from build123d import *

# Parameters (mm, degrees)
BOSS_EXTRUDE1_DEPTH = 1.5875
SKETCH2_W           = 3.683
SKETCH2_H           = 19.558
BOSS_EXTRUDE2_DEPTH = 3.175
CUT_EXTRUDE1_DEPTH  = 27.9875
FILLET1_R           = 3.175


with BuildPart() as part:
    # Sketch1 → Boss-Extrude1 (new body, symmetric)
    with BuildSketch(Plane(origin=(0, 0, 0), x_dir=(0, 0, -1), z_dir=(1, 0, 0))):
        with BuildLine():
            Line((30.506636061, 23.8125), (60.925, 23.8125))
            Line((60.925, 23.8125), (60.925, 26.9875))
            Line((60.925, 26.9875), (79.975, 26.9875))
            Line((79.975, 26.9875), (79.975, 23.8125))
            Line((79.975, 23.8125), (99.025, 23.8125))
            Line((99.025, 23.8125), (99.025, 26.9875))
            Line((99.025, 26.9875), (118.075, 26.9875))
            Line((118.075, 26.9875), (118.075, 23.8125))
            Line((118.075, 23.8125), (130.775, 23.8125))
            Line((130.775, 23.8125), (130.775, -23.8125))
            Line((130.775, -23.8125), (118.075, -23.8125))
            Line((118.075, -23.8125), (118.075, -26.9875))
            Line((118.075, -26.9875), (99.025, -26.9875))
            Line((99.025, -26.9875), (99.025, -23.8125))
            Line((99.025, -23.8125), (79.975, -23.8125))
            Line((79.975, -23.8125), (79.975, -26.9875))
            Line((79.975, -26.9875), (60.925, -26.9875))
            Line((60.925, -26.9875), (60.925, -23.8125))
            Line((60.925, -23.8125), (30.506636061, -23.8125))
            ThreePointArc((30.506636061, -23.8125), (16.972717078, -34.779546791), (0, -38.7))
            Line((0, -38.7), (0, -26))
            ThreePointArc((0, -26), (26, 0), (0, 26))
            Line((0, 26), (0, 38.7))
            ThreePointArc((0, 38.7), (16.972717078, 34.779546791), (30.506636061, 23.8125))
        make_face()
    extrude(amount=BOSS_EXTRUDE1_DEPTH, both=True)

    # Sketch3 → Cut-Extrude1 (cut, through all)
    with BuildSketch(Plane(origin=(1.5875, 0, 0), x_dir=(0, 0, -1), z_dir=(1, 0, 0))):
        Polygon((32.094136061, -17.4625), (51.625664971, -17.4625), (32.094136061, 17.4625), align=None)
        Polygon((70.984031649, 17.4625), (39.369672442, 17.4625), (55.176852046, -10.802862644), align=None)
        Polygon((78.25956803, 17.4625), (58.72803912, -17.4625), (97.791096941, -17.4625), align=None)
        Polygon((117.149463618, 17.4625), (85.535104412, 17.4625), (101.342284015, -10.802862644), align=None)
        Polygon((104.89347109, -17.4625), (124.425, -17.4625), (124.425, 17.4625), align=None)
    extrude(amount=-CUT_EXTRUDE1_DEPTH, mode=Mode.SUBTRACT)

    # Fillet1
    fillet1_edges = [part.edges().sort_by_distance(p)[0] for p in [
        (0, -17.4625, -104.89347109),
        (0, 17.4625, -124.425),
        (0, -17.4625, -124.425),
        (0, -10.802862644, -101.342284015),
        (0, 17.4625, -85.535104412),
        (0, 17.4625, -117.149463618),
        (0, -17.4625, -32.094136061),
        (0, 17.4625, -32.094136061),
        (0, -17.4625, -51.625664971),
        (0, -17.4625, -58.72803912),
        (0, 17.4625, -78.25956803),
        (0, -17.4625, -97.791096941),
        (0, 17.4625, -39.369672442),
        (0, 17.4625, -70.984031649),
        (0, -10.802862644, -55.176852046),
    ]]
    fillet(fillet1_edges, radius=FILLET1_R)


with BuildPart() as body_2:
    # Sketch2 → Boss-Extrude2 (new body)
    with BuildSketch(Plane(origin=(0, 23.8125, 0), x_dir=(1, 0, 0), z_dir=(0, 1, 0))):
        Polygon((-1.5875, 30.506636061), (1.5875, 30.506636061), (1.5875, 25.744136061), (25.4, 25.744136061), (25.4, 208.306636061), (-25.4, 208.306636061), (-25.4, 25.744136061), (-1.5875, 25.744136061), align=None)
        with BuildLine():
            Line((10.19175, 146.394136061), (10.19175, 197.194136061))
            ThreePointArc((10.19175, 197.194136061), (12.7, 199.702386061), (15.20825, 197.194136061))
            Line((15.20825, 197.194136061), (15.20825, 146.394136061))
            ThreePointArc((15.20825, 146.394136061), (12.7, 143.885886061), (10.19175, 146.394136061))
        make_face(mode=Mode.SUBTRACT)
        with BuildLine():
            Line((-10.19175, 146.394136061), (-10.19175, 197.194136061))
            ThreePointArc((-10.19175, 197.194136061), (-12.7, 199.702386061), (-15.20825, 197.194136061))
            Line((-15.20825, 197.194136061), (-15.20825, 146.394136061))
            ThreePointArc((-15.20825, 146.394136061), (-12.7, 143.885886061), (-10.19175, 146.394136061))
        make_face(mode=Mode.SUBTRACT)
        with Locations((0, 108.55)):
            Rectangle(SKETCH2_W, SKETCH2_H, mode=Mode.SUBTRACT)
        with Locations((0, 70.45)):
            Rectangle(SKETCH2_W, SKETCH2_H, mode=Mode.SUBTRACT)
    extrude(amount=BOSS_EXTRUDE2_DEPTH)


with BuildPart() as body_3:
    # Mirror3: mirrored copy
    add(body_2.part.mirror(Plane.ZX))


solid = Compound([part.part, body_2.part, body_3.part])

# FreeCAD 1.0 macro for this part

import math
import FreeCAD as App
import Part
import Sketcher
from FreeCAD import Vector
Q = App.Units.Quantity


def edges_at(feature, points):
    """Names of the edges that pass closest to the given points."""
    edges = feature.Shape.Edges
    near = lambda p: min(range(len(edges)), key=lambda i: edges[i].distToShape(Part.Vertex(*p))[0])
    return sorted({f"Edge{near(p) + 1}" for p in points})


def add_polygon(sketch, points):
    """Adds a closed chain of lines whose ends are joined by coincident constraints."""
    first, n = sketch.GeometryCount, len(points)
    for a, b in zip(points, points[1:] + points[:1]):
        sketch.addGeometry(Part.LineSegment(App.Vector(*a, 0), App.Vector(*b, 0)), False)
    for i in range(n):
        sketch.addConstraint(Sketcher.Constraint("Coincident", first + i, 2, first + (i + 1) % n, 1))

doc = App.newDocument("Part")
body = doc.addObject("PartDesign::Body", "Body")

# Sketch on YZ plane
sketch1 = doc.addObject("Sketcher::SketchObject", "Sketch")
body.addObject(sketch1)
sketch1.AttachmentSupport = (doc.YZ_Plane, [""])
sketch1.MapMode = "FlatFace"
sketch1.addGeometry(Part.LineSegment(Vector(23.8, -60.9, 0), Vector(23.8, -30.5, 0)), False)
sketch1.addGeometry(Part.ArcOfCircle(Part.Circle(Vector(0, 0, 0), Vector(0, 0, 1), 38.7), math.radians(-52), math.radians(0)), False)
sketch1.addGeometry(Part.LineSegment(Vector(38.7, 0, 0), Vector(26, 0, 0)), False)
sketch1.addGeometry(Part.ArcOfCircle(Part.Circle(Vector(0, 0, 0), Vector(0, 0, 1), 26), math.radians(180), math.radians(360)), False)
sketch1.addGeometry(Part.LineSegment(Vector(-26, 0, 0), Vector(-38.7, 0, 0)), False)
sketch1.addGeometry(Part.ArcOfCircle(Part.Circle(Vector(0, 0, 0), Vector(0, 0, 1), 38.7), math.radians(180), math.radians(232)), False)
sketch1.addGeometry(Part.LineSegment(Vector(-23.8, -30.5, 0), Vector(-23.8, -60.9, 0)), False)
sketch1.addGeometry(Part.LineSegment(Vector(-23.8, -60.9, 0), Vector(-27, -60.9, 0)), False)
sketch1.addGeometry(Part.LineSegment(Vector(-27, -60.9, 0), Vector(-27, -80, 0)), False)
sketch1.addGeometry(Part.LineSegment(Vector(-27, -80, 0), Vector(-23.8, -80, 0)), False)
sketch1.addGeometry(Part.LineSegment(Vector(-23.8, -80, 0), Vector(-23.8, -99, 0)), False)
sketch1.addGeometry(Part.LineSegment(Vector(-23.8, -99, 0), Vector(-27, -99, 0)), False)
sketch1.addGeometry(Part.LineSegment(Vector(-27, -99, 0), Vector(-27, -118.1, 0)), False)
sketch1.addGeometry(Part.LineSegment(Vector(-27, -118.1, 0), Vector(-23.8, -118.1, 0)), False)
sketch1.addGeometry(Part.LineSegment(Vector(-23.8, -118.1, 0), Vector(-23.8, -130.8, 0)), False)
sketch1.addGeometry(Part.LineSegment(Vector(-23.8, -130.8, 0), Vector(23.8, -130.8, 0)), False)
sketch1.addGeometry(Part.LineSegment(Vector(23.8, -130.8, 0), Vector(23.8, -118.1, 0)), False)
sketch1.addGeometry(Part.LineSegment(Vector(23.8, -118.1, 0), Vector(27, -118.1, 0)), False)
sketch1.addGeometry(Part.LineSegment(Vector(27, -118.1, 0), Vector(27, -99, 0)), False)
sketch1.addGeometry(Part.LineSegment(Vector(27, -99, 0), Vector(23.8, -99, 0)), False)
sketch1.addGeometry(Part.LineSegment(Vector(23.8, -99, 0), Vector(23.8, -80, 0)), False)
sketch1.addGeometry(Part.LineSegment(Vector(23.8, -80, 0), Vector(27, -80, 0)), False)
sketch1.addGeometry(Part.LineSegment(Vector(27, -80, 0), Vector(27, -60.9, 0)), False)
sketch1.addGeometry(Part.LineSegment(Vector(27, -60.9, 0), Vector(23.8, -60.9, 0)), False)
sketch1.addConstraint(Sketcher.Constraint("Coincident", 0, 2, 1, 1))
sketch1.addConstraint(Sketcher.Constraint("Coincident", 1, 2, 2, 1))
sketch1.addConstraint(Sketcher.Constraint("Coincident", 2, 2, 3, 2))
sketch1.addConstraint(Sketcher.Constraint("Coincident", 3, 1, 4, 1))
sketch1.addConstraint(Sketcher.Constraint("Coincident", 4, 2, 5, 1))
sketch1.addConstraint(Sketcher.Constraint("Coincident", 5, 2, 6, 1))
sketch1.addConstraint(Sketcher.Constraint("Coincident", 6, 2, 7, 1))
sketch1.addConstraint(Sketcher.Constraint("Coincident", 7, 2, 8, 1))
sketch1.addConstraint(Sketcher.Constraint("Coincident", 8, 2, 9, 1))
sketch1.addConstraint(Sketcher.Constraint("Coincident", 9, 2, 10, 1))
sketch1.addConstraint(Sketcher.Constraint("Coincident", 10, 2, 11, 1))
sketch1.addConstraint(Sketcher.Constraint("Coincident", 11, 2, 12, 1))
sketch1.addConstraint(Sketcher.Constraint("Coincident", 12, 2, 13, 1))
sketch1.addConstraint(Sketcher.Constraint("Coincident", 13, 2, 14, 1))
sketch1.addConstraint(Sketcher.Constraint("Coincident", 14, 2, 15, 1))
sketch1.addConstraint(Sketcher.Constraint("Coincident", 15, 2, 16, 1))
sketch1.addConstraint(Sketcher.Constraint("Coincident", 16, 2, 17, 1))
sketch1.addConstraint(Sketcher.Constraint("Coincident", 17, 2, 18, 1))
sketch1.addConstraint(Sketcher.Constraint("Coincident", 18, 2, 19, 1))
sketch1.addConstraint(Sketcher.Constraint("Coincident", 19, 2, 20, 1))
sketch1.addConstraint(Sketcher.Constraint("Coincident", 20, 2, 21, 1))
sketch1.addConstraint(Sketcher.Constraint("Coincident", 21, 2, 22, 1))
sketch1.addConstraint(Sketcher.Constraint("Coincident", 22, 2, 23, 1))
sketch1.addConstraint(Sketcher.Constraint("Coincident", 23, 2, 0, 1))
sketch1.addConstraint(Sketcher.Constraint("Vertical", 0))
sketch1.addConstraint(Sketcher.Constraint("Horizontal", 2))
sketch1.addConstraint(Sketcher.Constraint("Horizontal", 4))
sketch1.addConstraint(Sketcher.Constraint("Vertical", 6))
sketch1.addConstraint(Sketcher.Constraint("Horizontal", 7))
sketch1.addConstraint(Sketcher.Constraint("Vertical", 8))
sketch1.addConstraint(Sketcher.Constraint("Horizontal", 9))
sketch1.addConstraint(Sketcher.Constraint("Vertical", 10))
sketch1.addConstraint(Sketcher.Constraint("Horizontal", 11))
sketch1.addConstraint(Sketcher.Constraint("Vertical", 12))
sketch1.addConstraint(Sketcher.Constraint("Horizontal", 13))
sketch1.addConstraint(Sketcher.Constraint("Vertical", 14))
sketch1.addConstraint(Sketcher.Constraint("Horizontal", 15))
sketch1.addConstraint(Sketcher.Constraint("Vertical", 16))
sketch1.addConstraint(Sketcher.Constraint("Horizontal", 17))
sketch1.addConstraint(Sketcher.Constraint("Vertical", 18))
sketch1.addConstraint(Sketcher.Constraint("Horizontal", 19))
sketch1.addConstraint(Sketcher.Constraint("Vertical", 20))
sketch1.addConstraint(Sketcher.Constraint("Horizontal", 21))
sketch1.addConstraint(Sketcher.Constraint("Vertical", 22))
sketch1.addConstraint(Sketcher.Constraint("Horizontal", 23))
sketch1.addConstraint(Sketcher.Constraint("Coincident", 1, 3, -1, 1))
sketch1.addConstraint(Sketcher.Constraint("Coincident", 3, 3, -1, 1))
sketch1.addConstraint(Sketcher.Constraint("Coincident", 5, 3, -1, 1))
sketch1.addConstraint(Sketcher.Constraint("Equal", 1, 5))
sketch1.addConstraint(Sketcher.Constraint("Symmetric", 13, 2, 16, 2, -2))
sketch1.addConstraint(Sketcher.Constraint("Symmetric", 11, 2, 18, 2, -2))
sketch1.addConstraint(Sketcher.Constraint("Symmetric", 9, 2, 20, 2, -2))
sketch1.addConstraint(Sketcher.Constraint("Symmetric", 7, 2, 22, 2, -2))
sketch1.addConstraint(Sketcher.Constraint("PointOnObject", 1, 2, -1))
sketch1.addConstraint(Sketcher.Constraint("PointOnObject", 3, 1, -1))
sketch1.addConstraint(Sketcher.Constraint("Horizontal", 0, 2, 5, 2))
sketch1.addConstraint(Sketcher.Constraint("Vertical", 6, 2, 9, 2))
sketch1.addConstraint(Sketcher.Constraint("Vertical", 8, 2, 11, 2))
sketch1.addConstraint(Sketcher.Constraint("Vertical", 10, 2, 13, 2))
sketch1.addConstraint(Sketcher.Constraint("Equal", 8, 10))
sketch1.addConstraint(Sketcher.Constraint("Equal", 10, 12))
sketch1.addConstraint(Sketcher.Constraint("Equal", 4, 14))
sketch1.addConstraint(Sketcher.Constraint("DistanceX", 2, 2, 2, 1, Q("0.5 in")))
sketch1.addConstraint(Sketcher.Constraint("DistanceX", 7, 2, 0, 2, Q("2 in")))
sketch1.addConstraint(Sketcher.Constraint("DistanceY", 14, 2, 9, 2, Q("2 in")))
sketch1.addConstraint(Sketcher.Constraint("DistanceX", 7, 2, 7, 1, Q("0.125 in")))
sketch1.addConstraint(Sketcher.Constraint("Radius", 1, Q("38.7 mm")))
sketch1.addConstraint(Sketcher.Constraint("DistanceY", 6, 2, -1, 1, Q("60.925 mm")))
pad1 = doc.addObject("PartDesign::Pad", "Pad")
body.addObject(pad1)
pad1.Profile = sketch1
pad1.Length = Q("0.125 in")
pad1.Midplane = True

# Sketch on YZ plane
sketch2 = doc.addObject("Sketcher::SketchObject", "Sketch001")
body.addObject(sketch2)
sketch2.AttachmentSupport = (doc.YZ_Plane, [""])
sketch2.MapMode = "FlatFace"
sketch2.AttachmentOffset = App.Placement(Vector(0, 0, 0.0625 * 25.4), App.Rotation())
add_polygon(sketch2, [(-17, -32), (-17, -52), (17, -32)])  # lines 0-2
add_polygon(sketch2, [(17, -71), (17, -39), (-11, -55)])  # lines 3-5
add_polygon(sketch2, [(17, -78), (-17, -59), (-17, -98)])  # lines 6-8
add_polygon(sketch2, [(17, -117), (17, -86), (-11, -101)])  # lines 9-11
add_polygon(sketch2, [(-17, -105), (-17, -124), (17, -124)])  # lines 12-14
sketch2.addConstraint(Sketcher.Constraint("Vertical", 0))
sketch2.addConstraint(Sketcher.Constraint("Horizontal", 2))
sketch2.addConstraint(Sketcher.Constraint("Vertical", 3))
sketch2.addConstraint(Sketcher.Constraint("Vertical", 7))
sketch2.addConstraint(Sketcher.Constraint("Vertical", 9))
sketch2.addConstraint(Sketcher.Constraint("Vertical", 12))
sketch2.addConstraint(Sketcher.Constraint("Horizontal", 13))
sketch2.addConstraint(Sketcher.Constraint("Parallel", 1, 4))
sketch2.addConstraint(Sketcher.Constraint("Parallel", 5, 6))
sketch2.addConstraint(Sketcher.Constraint("Parallel", 4, 8))
sketch2.addConstraint(Sketcher.Constraint("Parallel", 8, 10))
sketch2.addConstraint(Sketcher.Constraint("Parallel", 6, 11))
sketch2.addConstraint(Sketcher.Constraint("Parallel", 11, 14))
sketch2.addConstraint(Sketcher.Constraint("Vertical", 1, 2, 3, 2))
sketch2.addConstraint(Sketcher.Constraint("Vertical", 2, 2, 6, 2))
sketch2.addConstraint(Sketcher.Constraint("Vertical", 5, 2, 8, 2))
sketch2.addConstraint(Sketcher.Constraint("Vertical", 8, 2, 9, 2))
sketch2.addConstraint(Sketcher.Constraint("Vertical", 4, 2, 10, 2))
sketch2.addConstraint(Sketcher.Constraint("Vertical", 7, 2, 12, 2))
sketch2.addConstraint(Sketcher.Constraint("Vertical", 11, 2, 13, 2))
sketch2.addConstraint(Sketcher.Constraint("Equal", 0, 12))
sketch2.addConstraint(Sketcher.Constraint("DistanceX", 2, 2, 2, 1, Q("1.375 in")))
sketch2.addConstraint(Sketcher.Constraint("DistanceX", 0, 2, -1, 1, Q("0.6875 in")))
sketch2.addConstraint(Sketcher.Constraint("DistanceY", 0, 2, 0, 1, Q("19.531529 mm")))
sketch2.addConstraint(Sketcher.Constraint("DistanceY", 3, 1, 3, 2, Q("31.614359 mm")))
sketch2.addConstraint(Sketcher.Constraint("DistanceY", 12, 2, -1, 1, Q("124.425 mm")))
sketch2.addConstraint(Sketcher.Constraint("DistanceY", 5, 2, -1, 1, Q("70.984032 mm")))
sketch2.addConstraint(Sketcher.Constraint("DistanceY", 6, 2, -1, 1, Q("58.728039 mm")))
sketch2.addConstraint(Sketcher.Constraint("DistanceY", 7, 2, 0, 2, Q("46.165432 mm")))
sketch2.addConstraint(Sketcher.Constraint("DistanceY", 11, 2, 5, 2, Q("46.165432 mm")))
pocket1 = doc.addObject("PartDesign::Pocket", "Pocket")
body.addObject(pocket1)
pocket1.Profile = sketch2
pocket1.Type = "ThroughAll"
doc.recompute()

fillet = doc.addObject("PartDesign::Fillet", "Fillet")
body.addObject(fillet)
fillet.Base = (pocket1, edges_at(pocket1, [
    (0, -17.462, -104.893),
    (0, 17.462, -124.425),
    (0, -17.462, -124.425),
    (0, -10.803, -101.342),
    (0, 17.462, -85.535),
    (0, 17.462, -117.149),
    (0, -17.462, -32.094),
    (0, 17.462, -32.094),
    (0, -17.462, -51.626),
    (0, -17.462, -58.728),
    (0, 17.462, -78.26),
    (0, -17.462, -97.791),
    (0, 17.462, -39.37),
    (0, 17.462, -70.984),
    (0, -10.803, -55.177),
]))
fillet.Radius = Q("0.125 in")
body2 = doc.addObject("PartDesign::Body", "Body001")

# Sketch on XZ plane
sketch3 = doc.addObject("Sketcher::SketchObject", "Sketch002")
body2.addObject(sketch3)
sketch3.AttachmentSupport = (doc.getObject("XZ_Plane001"), [""])
sketch3.MapMode = "FlatFace"
sketch3.AttachmentOffset = App.Placement(Vector(0, 0, -0.9375 * 25.4), App.Rotation())
add_polygon(sketch3, [(-1.6, -30.5), (1.6, -30.5), (1.6, -25.7), (25.4, -25.7), (25.4, -208.3), (-25.4, -208.3), (-25.4, -25.7), (-1.6, -25.7)])  # lines 0-7
add_polygon(sketch3, [(1.8, -60.7), (-1.8, -60.7), (-1.8, -80.2), (1.8, -80.2)])  # lines 8-11
add_polygon(sketch3, [(1.8, -98.8), (-1.8, -98.8), (-1.8, -118.3), (1.8, -118.3)])  # lines 12-15
sketch3.addGeometry(Part.LineSegment(Vector(-10.2, -197.2, 0), Vector(-10.2, -146.4, 0)), False)  # 16
sketch3.addGeometry(Part.ArcOfCircle(Part.Circle(Vector(-12.7, -146.4, 0), Vector(0, 0, 1), 2.5), math.radians(0), math.radians(180)), False)  # 17
sketch3.addGeometry(Part.LineSegment(Vector(-15.2, -146.4, 0), Vector(-15.2, -197.2, 0)), False)  # 18
sketch3.addGeometry(Part.ArcOfCircle(Part.Circle(Vector(-12.7, -197.2, 0), Vector(0, 0, 1), 2.5), math.radians(180), math.radians(360)), False)  # 19
sketch3.addGeometry(Part.ArcOfCircle(Part.Circle(Vector(12.7, -146.4, 0), Vector(0, 0, 1), 2.5), math.radians(0), math.radians(180)), False)  # 20
sketch3.addGeometry(Part.LineSegment(Vector(10.2, -146.4, 0), Vector(10.2, -197.2, 0)), False)  # 21
sketch3.addGeometry(Part.ArcOfCircle(Part.Circle(Vector(12.7, -197.2, 0), Vector(0, 0, 1), 2.5), math.radians(180), math.radians(360)), False)  # 22
sketch3.addGeometry(Part.LineSegment(Vector(15.2, -197.2, 0), Vector(15.2, -146.4, 0)), False)  # 23
sketch3.addConstraint(Sketcher.Constraint("Tangent", 16, 2, 17, 1))
sketch3.addConstraint(Sketcher.Constraint("Tangent", 17, 2, 18, 1))
sketch3.addConstraint(Sketcher.Constraint("Tangent", 18, 2, 19, 1))
sketch3.addConstraint(Sketcher.Constraint("Tangent", 19, 2, 16, 1))
sketch3.addConstraint(Sketcher.Constraint("Tangent", 20, 2, 21, 1))
sketch3.addConstraint(Sketcher.Constraint("Tangent", 21, 2, 22, 1))
sketch3.addConstraint(Sketcher.Constraint("Tangent", 22, 2, 23, 1))
sketch3.addConstraint(Sketcher.Constraint("Tangent", 23, 2, 20, 1))
sketch3.addConstraint(Sketcher.Constraint("Horizontal", 0))
sketch3.addConstraint(Sketcher.Constraint("Vertical", 1))
sketch3.addConstraint(Sketcher.Constraint("Horizontal", 2))
sketch3.addConstraint(Sketcher.Constraint("Vertical", 3))
sketch3.addConstraint(Sketcher.Constraint("Horizontal", 4))
sketch3.addConstraint(Sketcher.Constraint("Vertical", 5))
sketch3.addConstraint(Sketcher.Constraint("Horizontal", 6))
sketch3.addConstraint(Sketcher.Constraint("Vertical", 7))
sketch3.addConstraint(Sketcher.Constraint("Horizontal", 8))
sketch3.addConstraint(Sketcher.Constraint("Vertical", 9))
sketch3.addConstraint(Sketcher.Constraint("Horizontal", 10))
sketch3.addConstraint(Sketcher.Constraint("Vertical", 11))
sketch3.addConstraint(Sketcher.Constraint("Horizontal", 12))
sketch3.addConstraint(Sketcher.Constraint("Vertical", 13))
sketch3.addConstraint(Sketcher.Constraint("Horizontal", 14))
sketch3.addConstraint(Sketcher.Constraint("Vertical", 15))
sketch3.addConstraint(Sketcher.Constraint("Vertical", 16))
sketch3.addConstraint(Sketcher.Constraint("Vertical", 18))
sketch3.addConstraint(Sketcher.Constraint("Vertical", 21))
sketch3.addConstraint(Sketcher.Constraint("Vertical", 23))
sketch3.addConstraint(Sketcher.Constraint("Equal", 19, 20))
sketch3.addConstraint(Sketcher.Constraint("Symmetric", 17, 3, 20, 3, -2))
sketch3.addConstraint(Sketcher.Constraint("Symmetric", 2, 2, 5, 2, -2))
sketch3.addConstraint(Sketcher.Constraint("Horizontal", 19, 3, 22, 3))
sketch3.addConstraint(Sketcher.Constraint("Vertical", 9, 2, 12, 2))
sketch3.addConstraint(Sketcher.Constraint("Vertical", 11, 2, 14, 2))
sketch3.addConstraint(Sketcher.Constraint("Equal", 2, 6))
sketch3.addConstraint(Sketcher.Constraint("Equal", 11, 13))
sketch3.addConstraint(Sketcher.Constraint("Equal", 4, 16))
sketch3.addConstraint(Sketcher.Constraint("DistanceX", 4, 2, 4, 1, Q("2 in")))
sketch3.addConstraint(Sketcher.Constraint("DistanceX", 17, 3, 20, 3, Q("1 in")))
sketch3.addConstraint(Sketcher.Constraint("DistanceY", 3, 2, 0, 2, Q("7 in")))
sketch3.addConstraint(Sketcher.Constraint("DistanceY", 9, 2, 9, 1, Q("0.77 in")))
sketch3.addConstraint(Sketcher.Constraint("DistanceY", 12, 2, 8, 2, Q("1.5 in")))
sketch3.addConstraint(Sketcher.Constraint("DistanceX", 0, 1, 0, 2, Q("0.125 in")))
sketch3.addConstraint(Sketcher.Constraint("DistanceX", 8, 2, 8, 1, Q("0.145 in")))
sketch3.addConstraint(Sketcher.Constraint("DistanceY", 1, 1, 1, 2, Q("0.1875 in")))
sketch3.addConstraint(Sketcher.Constraint("DistanceY", 20, 3, 1, 2, Q("4.75 in")))
sketch3.addConstraint(Sketcher.Constraint("DistanceX", 8, 2, 7, 2, Q("0.01 in")))
sketch3.addConstraint(Sketcher.Constraint("Radius", 17, Q("2.50825 mm")))
sketch3.addConstraint(Sketcher.Constraint("DistanceY", 8, 2, -1, 1, Q("60.671 mm")))
sketch3.addConstraint(Sketcher.Constraint("DistanceY", 17, 3, -1, 1, Q("146.394136 mm")))
pad2 = doc.addObject("PartDesign::Pad", "Pad001")
body2.addObject(pad2)
pad2.Profile = sketch3
pad2.Length = Q("0.125 in")
pad2.Reversed = True
body3 = doc.addObject("PartDesign::Body", "Body002")
doc.recompute()

mirroring = doc.addObject("Part::Mirroring", "Mirroring")
mirroring.Source = body2
mirroring.Base = Vector(0, 0, 0)
mirroring.Normal = Vector(0, 1, 0)
body3.BaseFeature = mirroring
doc.recompute()
mirroring.Visibility = False

doc.recompute()
